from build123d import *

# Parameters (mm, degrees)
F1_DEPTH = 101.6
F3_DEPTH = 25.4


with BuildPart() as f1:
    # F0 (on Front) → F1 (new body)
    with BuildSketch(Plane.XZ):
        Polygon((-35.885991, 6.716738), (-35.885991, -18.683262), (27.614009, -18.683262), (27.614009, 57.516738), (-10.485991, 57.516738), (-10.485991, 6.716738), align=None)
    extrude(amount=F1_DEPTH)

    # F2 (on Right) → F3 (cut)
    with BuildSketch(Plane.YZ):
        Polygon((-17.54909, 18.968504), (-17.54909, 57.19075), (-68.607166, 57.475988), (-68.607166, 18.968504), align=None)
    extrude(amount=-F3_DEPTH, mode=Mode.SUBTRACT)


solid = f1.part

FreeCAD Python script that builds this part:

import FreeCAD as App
import Part
import Sketcher

V = App.Vector
Q = App.Units.Quantity


def add_polygon(sketch, points):
    """Adds a closed chain of lines whose ends are joined by coincident constraints."""
    first, n = sketch.GeometryCount, len(points)
    for a, b in zip(points, points[1:] + points[:1]):
        sketch.addGeometry(Part.LineSegment(App.Vector(*a, 0), App.Vector(*b, 0)), False)
    for i in range(n):
        sketch.addConstraint(Sketcher.Constraint("Coincident", first + i, 2, first + (i + 1) % n, 1))

doc = App.newDocument("Part")
body = doc.addObject("PartDesign::Body", "Body")

# Sketch on XZ plane
sketch1 = body.newObject("Sketcher::SketchObject", "Sketch")
sketch1.AttachmentSupport = (doc.getObject("XZ_Plane"), [""])
sketch1.MapMode = "FlatFace"
add_polygon(sketch1, [(-35.885991, 6.716738), (-35.885991, -18.683262), (27.614009, -18.683262), (27.614009, 57.516738), (-10.485991, 57.516738), (-10.485991, 6.716738)])  # lines 0-5
sketch1.addConstraint([
    Sketcher.Constraint("Vertical", 0),
    Sketcher.Constraint("Horizontal", 1),
    Sketcher.Constraint("Vertical", 2),
    Sketcher.Constraint("Horizontal", 3),
    Sketcher.Constraint("Vertical", 4),
    Sketcher.Constraint("Horizontal", 5),
    Sketcher.Constraint("Equal", 5, 0),
    Sketcher.Constraint("DistanceX", 5, 2, 5, 1, Q("1 in")),
    Sketcher.Constraint("DistanceY", 2, 1, 2, 2, Q("3 in")),
    Sketcher.Constraint("DistanceX", 1, 1, 1, 2, Q("2.5 in")),
    Sketcher.Constraint("DistanceX", 0, 2, -1, 1, 35.885991),
    Sketcher.Constraint("DistanceY", 0, 2, -1, 1, 18.683262),
])
pad1 = body.newObject("PartDesign::Pad", "Pad")
pad1.Profile = sketch1
pad1.Length = Q("4 in")

# Sketch on YZ plane
sketch2 = body.newObject("Sketcher::SketchObject", "Sketch001")
sketch2.AttachmentSupport = (doc.getObject("YZ_Plane"), [""])
sketch2.MapMode = "FlatFace"
add_polygon(sketch2, [(-17.54909, 18.968504), (-17.54909, 57.19075), (-68.607166, 57.475988), (-68.607166, 18.968504)])  # lines 0-3
sketch2.addConstraint([
    Sketcher.Constraint("Vertical", 0),
    Sketcher.Constraint("Vertical", 2),
    Sketcher.Constraint("Horizontal", 3),
    Sketcher.Constraint("DistanceX", 3, 1, 3, 2, 51.058076),
    Sketcher.Constraint("DistanceY", 0, 1, 0, 2, 38.222246),
    Sketcher.Constraint("DistanceY", 2, 2, 2, 1, 38.507484),
    Sketcher.Constraint("DistanceX", 0, 2, -1, 1, 17.54909),
    Sketcher.Constraint("DistanceY", -1, 1, 0, 2, 57.19075),
])
pocket1 = body.newObject("PartDesign::Pocket", "Pocket")
pocket1.Profile = sketch2
pocket1.Length = Q("1 in")

doc.recompute()
